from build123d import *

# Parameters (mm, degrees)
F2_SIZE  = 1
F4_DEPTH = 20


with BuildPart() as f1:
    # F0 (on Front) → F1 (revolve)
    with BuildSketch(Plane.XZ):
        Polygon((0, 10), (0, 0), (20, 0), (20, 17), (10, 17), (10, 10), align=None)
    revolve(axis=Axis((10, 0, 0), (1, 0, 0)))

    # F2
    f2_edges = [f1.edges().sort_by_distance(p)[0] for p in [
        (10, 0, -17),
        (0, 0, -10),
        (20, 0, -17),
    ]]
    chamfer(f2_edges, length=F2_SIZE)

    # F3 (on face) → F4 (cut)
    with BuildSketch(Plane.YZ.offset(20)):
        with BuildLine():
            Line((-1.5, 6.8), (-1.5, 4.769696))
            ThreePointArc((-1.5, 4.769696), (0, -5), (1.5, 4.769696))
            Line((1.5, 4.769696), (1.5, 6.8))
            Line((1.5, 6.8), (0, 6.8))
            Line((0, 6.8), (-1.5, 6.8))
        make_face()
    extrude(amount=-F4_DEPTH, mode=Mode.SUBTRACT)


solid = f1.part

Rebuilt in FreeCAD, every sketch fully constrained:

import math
import FreeCAD as App
import Part
import Sketcher
Q = App.Units.Quantity


def edges_at(feature, points):
    """Names of the edges that pass closest to the given points."""
    edges = feature.Shape.Edges
    near = lambda p: min(range(len(edges)), key=lambda i: edges[i].distToShape(Part.Vertex(*p))[0])
    return sorted({f"Edge{near(p) + 1}" for p in points})


def add_polygon(sketch, points):
    """Adds a closed chain of lines whose ends are joined by coincident constraints."""
    first, n = sketch.GeometryCount, len(points)
    for a, b in zip(points, points[1:] + points[:1]):
        sketch.addGeometry(Part.LineSegment(App.Vector(*a, 0), App.Vector(*b, 0)), False)
    for i in range(n):
        sketch.addConstraint(Sketcher.Constraint("Coincident", first + i, 2, first + (i + 1) % n, 1))

doc = App.newDocument("Part")
body = doc.addObject("PartDesign::Body", "Body")

# Sketch on XZ plane
sketch1 = body.newObject("Sketcher::SketchObject", "Sketch")
sketch1.AttachmentSupport = (doc.getObject("XZ_Plane"), [""])
sketch1.MapMode = "FlatFace"
add_polygon(sketch1, [(0, 10), (0, 0), (20, 0), (20, 17), (10, 17), (10, 10)])  # lines 0-5
sketch1.addConstraint([
    Sketcher.Constraint("Vertical", 0),
    Sketcher.Constraint("Horizontal", 1),
    Sketcher.Constraint("Vertical", 2),
    Sketcher.Constraint("Horizontal", 3),
    Sketcher.Constraint("Vertical", 4),
    Sketcher.Constraint("Horizontal", 5),
    Sketcher.Constraint("Coincident", 0, 2, -1, 1),
    Sketcher.Constraint("Equal", 3, 5),
    Sketcher.Constraint("Equal", 5, 0),
    Sketcher.Constraint("DistanceX", 1, 1, 1, 2, Q("20 mm")),
    Sketcher.Constraint("DistanceY", 2, 1, 2, 2, Q("17 mm")),
])
revolution = body.newObject("PartDesign::Revolution", "Revolution")
revolution.Profile = sketch1
revolution.ReferenceAxis = (sketch1, ["H_Axis"])
revolution.Angle = 360
doc.recompute()

chamfer = body.newObject("PartDesign::Chamfer", "Chamfer")
chamfer.Base = (revolution, edges_at(revolution, [(10, 0, -17), (0, 0, -10), (20, 0, -17)]))
chamfer.Size = 1

# Sketch on YZ plane
sketch2 = body.newObject("Sketcher::SketchObject", "Sketch001")
sketch2.AttachmentSupport = (doc.getObject("YZ_Plane"), [""])
sketch2.MapMode = "FlatFace"
sketch2.AttachmentOffset = App.Placement(App.Vector(0, 0, 20), App.Rotation())
sketch2.addGeometry([
    Part.LineSegment(App.Vector(-1.5, 6.8, 0), App.Vector(-1.5, 4.8, 0)),
    Part.ArcOfCircle(Part.Circle(App.Vector(0, 0, 0), App.Vector(0, 0, 1), 5), math.radians(107), math.radians(433)),
    Part.LineSegment(App.Vector(1.5, 4.8, 0), App.Vector(1.5, 6.8, 0)),
    Part.LineSegment(App.Vector(1.5, 6.8, 0), App.Vector(-1.5, 6.8, 0)),
], False)
sketch2.addConstraint([
    Sketcher.Constraint("Coincident", 0, 2, 1, 1),
    Sketcher.Constraint("Coincident", 1, 2, 2, 1),
    Sketcher.Constraint("Coincident", 2, 2, 3, 1),
    Sketcher.Constraint("Coincident", 3, 2, 0, 1),
    Sketcher.Constraint("Vertical", 0),
    Sketcher.Constraint("Vertical", 2),
    Sketcher.Constraint("Horizontal", 3),
    Sketcher.Constraint("Coincident", 1, 3, -1, 1),
    Sketcher.Constraint("Horizontal", 0, 2, 1, 2),
    Sketcher.Constraint("Radius", 1, Q("5 mm")),
    Sketcher.Constraint("DistanceX", 3, 2, 3, 1, Q("3 mm")),
    Sketcher.Constraint("DistanceY", -1, 1, 2, 2, Q("6.8 mm")),
])
pocket1 = body.newObject("PartDesign::Pocket", "Pocket")
pocket1.Profile = sketch2
pocket1.Length = 20

doc.recompute()
